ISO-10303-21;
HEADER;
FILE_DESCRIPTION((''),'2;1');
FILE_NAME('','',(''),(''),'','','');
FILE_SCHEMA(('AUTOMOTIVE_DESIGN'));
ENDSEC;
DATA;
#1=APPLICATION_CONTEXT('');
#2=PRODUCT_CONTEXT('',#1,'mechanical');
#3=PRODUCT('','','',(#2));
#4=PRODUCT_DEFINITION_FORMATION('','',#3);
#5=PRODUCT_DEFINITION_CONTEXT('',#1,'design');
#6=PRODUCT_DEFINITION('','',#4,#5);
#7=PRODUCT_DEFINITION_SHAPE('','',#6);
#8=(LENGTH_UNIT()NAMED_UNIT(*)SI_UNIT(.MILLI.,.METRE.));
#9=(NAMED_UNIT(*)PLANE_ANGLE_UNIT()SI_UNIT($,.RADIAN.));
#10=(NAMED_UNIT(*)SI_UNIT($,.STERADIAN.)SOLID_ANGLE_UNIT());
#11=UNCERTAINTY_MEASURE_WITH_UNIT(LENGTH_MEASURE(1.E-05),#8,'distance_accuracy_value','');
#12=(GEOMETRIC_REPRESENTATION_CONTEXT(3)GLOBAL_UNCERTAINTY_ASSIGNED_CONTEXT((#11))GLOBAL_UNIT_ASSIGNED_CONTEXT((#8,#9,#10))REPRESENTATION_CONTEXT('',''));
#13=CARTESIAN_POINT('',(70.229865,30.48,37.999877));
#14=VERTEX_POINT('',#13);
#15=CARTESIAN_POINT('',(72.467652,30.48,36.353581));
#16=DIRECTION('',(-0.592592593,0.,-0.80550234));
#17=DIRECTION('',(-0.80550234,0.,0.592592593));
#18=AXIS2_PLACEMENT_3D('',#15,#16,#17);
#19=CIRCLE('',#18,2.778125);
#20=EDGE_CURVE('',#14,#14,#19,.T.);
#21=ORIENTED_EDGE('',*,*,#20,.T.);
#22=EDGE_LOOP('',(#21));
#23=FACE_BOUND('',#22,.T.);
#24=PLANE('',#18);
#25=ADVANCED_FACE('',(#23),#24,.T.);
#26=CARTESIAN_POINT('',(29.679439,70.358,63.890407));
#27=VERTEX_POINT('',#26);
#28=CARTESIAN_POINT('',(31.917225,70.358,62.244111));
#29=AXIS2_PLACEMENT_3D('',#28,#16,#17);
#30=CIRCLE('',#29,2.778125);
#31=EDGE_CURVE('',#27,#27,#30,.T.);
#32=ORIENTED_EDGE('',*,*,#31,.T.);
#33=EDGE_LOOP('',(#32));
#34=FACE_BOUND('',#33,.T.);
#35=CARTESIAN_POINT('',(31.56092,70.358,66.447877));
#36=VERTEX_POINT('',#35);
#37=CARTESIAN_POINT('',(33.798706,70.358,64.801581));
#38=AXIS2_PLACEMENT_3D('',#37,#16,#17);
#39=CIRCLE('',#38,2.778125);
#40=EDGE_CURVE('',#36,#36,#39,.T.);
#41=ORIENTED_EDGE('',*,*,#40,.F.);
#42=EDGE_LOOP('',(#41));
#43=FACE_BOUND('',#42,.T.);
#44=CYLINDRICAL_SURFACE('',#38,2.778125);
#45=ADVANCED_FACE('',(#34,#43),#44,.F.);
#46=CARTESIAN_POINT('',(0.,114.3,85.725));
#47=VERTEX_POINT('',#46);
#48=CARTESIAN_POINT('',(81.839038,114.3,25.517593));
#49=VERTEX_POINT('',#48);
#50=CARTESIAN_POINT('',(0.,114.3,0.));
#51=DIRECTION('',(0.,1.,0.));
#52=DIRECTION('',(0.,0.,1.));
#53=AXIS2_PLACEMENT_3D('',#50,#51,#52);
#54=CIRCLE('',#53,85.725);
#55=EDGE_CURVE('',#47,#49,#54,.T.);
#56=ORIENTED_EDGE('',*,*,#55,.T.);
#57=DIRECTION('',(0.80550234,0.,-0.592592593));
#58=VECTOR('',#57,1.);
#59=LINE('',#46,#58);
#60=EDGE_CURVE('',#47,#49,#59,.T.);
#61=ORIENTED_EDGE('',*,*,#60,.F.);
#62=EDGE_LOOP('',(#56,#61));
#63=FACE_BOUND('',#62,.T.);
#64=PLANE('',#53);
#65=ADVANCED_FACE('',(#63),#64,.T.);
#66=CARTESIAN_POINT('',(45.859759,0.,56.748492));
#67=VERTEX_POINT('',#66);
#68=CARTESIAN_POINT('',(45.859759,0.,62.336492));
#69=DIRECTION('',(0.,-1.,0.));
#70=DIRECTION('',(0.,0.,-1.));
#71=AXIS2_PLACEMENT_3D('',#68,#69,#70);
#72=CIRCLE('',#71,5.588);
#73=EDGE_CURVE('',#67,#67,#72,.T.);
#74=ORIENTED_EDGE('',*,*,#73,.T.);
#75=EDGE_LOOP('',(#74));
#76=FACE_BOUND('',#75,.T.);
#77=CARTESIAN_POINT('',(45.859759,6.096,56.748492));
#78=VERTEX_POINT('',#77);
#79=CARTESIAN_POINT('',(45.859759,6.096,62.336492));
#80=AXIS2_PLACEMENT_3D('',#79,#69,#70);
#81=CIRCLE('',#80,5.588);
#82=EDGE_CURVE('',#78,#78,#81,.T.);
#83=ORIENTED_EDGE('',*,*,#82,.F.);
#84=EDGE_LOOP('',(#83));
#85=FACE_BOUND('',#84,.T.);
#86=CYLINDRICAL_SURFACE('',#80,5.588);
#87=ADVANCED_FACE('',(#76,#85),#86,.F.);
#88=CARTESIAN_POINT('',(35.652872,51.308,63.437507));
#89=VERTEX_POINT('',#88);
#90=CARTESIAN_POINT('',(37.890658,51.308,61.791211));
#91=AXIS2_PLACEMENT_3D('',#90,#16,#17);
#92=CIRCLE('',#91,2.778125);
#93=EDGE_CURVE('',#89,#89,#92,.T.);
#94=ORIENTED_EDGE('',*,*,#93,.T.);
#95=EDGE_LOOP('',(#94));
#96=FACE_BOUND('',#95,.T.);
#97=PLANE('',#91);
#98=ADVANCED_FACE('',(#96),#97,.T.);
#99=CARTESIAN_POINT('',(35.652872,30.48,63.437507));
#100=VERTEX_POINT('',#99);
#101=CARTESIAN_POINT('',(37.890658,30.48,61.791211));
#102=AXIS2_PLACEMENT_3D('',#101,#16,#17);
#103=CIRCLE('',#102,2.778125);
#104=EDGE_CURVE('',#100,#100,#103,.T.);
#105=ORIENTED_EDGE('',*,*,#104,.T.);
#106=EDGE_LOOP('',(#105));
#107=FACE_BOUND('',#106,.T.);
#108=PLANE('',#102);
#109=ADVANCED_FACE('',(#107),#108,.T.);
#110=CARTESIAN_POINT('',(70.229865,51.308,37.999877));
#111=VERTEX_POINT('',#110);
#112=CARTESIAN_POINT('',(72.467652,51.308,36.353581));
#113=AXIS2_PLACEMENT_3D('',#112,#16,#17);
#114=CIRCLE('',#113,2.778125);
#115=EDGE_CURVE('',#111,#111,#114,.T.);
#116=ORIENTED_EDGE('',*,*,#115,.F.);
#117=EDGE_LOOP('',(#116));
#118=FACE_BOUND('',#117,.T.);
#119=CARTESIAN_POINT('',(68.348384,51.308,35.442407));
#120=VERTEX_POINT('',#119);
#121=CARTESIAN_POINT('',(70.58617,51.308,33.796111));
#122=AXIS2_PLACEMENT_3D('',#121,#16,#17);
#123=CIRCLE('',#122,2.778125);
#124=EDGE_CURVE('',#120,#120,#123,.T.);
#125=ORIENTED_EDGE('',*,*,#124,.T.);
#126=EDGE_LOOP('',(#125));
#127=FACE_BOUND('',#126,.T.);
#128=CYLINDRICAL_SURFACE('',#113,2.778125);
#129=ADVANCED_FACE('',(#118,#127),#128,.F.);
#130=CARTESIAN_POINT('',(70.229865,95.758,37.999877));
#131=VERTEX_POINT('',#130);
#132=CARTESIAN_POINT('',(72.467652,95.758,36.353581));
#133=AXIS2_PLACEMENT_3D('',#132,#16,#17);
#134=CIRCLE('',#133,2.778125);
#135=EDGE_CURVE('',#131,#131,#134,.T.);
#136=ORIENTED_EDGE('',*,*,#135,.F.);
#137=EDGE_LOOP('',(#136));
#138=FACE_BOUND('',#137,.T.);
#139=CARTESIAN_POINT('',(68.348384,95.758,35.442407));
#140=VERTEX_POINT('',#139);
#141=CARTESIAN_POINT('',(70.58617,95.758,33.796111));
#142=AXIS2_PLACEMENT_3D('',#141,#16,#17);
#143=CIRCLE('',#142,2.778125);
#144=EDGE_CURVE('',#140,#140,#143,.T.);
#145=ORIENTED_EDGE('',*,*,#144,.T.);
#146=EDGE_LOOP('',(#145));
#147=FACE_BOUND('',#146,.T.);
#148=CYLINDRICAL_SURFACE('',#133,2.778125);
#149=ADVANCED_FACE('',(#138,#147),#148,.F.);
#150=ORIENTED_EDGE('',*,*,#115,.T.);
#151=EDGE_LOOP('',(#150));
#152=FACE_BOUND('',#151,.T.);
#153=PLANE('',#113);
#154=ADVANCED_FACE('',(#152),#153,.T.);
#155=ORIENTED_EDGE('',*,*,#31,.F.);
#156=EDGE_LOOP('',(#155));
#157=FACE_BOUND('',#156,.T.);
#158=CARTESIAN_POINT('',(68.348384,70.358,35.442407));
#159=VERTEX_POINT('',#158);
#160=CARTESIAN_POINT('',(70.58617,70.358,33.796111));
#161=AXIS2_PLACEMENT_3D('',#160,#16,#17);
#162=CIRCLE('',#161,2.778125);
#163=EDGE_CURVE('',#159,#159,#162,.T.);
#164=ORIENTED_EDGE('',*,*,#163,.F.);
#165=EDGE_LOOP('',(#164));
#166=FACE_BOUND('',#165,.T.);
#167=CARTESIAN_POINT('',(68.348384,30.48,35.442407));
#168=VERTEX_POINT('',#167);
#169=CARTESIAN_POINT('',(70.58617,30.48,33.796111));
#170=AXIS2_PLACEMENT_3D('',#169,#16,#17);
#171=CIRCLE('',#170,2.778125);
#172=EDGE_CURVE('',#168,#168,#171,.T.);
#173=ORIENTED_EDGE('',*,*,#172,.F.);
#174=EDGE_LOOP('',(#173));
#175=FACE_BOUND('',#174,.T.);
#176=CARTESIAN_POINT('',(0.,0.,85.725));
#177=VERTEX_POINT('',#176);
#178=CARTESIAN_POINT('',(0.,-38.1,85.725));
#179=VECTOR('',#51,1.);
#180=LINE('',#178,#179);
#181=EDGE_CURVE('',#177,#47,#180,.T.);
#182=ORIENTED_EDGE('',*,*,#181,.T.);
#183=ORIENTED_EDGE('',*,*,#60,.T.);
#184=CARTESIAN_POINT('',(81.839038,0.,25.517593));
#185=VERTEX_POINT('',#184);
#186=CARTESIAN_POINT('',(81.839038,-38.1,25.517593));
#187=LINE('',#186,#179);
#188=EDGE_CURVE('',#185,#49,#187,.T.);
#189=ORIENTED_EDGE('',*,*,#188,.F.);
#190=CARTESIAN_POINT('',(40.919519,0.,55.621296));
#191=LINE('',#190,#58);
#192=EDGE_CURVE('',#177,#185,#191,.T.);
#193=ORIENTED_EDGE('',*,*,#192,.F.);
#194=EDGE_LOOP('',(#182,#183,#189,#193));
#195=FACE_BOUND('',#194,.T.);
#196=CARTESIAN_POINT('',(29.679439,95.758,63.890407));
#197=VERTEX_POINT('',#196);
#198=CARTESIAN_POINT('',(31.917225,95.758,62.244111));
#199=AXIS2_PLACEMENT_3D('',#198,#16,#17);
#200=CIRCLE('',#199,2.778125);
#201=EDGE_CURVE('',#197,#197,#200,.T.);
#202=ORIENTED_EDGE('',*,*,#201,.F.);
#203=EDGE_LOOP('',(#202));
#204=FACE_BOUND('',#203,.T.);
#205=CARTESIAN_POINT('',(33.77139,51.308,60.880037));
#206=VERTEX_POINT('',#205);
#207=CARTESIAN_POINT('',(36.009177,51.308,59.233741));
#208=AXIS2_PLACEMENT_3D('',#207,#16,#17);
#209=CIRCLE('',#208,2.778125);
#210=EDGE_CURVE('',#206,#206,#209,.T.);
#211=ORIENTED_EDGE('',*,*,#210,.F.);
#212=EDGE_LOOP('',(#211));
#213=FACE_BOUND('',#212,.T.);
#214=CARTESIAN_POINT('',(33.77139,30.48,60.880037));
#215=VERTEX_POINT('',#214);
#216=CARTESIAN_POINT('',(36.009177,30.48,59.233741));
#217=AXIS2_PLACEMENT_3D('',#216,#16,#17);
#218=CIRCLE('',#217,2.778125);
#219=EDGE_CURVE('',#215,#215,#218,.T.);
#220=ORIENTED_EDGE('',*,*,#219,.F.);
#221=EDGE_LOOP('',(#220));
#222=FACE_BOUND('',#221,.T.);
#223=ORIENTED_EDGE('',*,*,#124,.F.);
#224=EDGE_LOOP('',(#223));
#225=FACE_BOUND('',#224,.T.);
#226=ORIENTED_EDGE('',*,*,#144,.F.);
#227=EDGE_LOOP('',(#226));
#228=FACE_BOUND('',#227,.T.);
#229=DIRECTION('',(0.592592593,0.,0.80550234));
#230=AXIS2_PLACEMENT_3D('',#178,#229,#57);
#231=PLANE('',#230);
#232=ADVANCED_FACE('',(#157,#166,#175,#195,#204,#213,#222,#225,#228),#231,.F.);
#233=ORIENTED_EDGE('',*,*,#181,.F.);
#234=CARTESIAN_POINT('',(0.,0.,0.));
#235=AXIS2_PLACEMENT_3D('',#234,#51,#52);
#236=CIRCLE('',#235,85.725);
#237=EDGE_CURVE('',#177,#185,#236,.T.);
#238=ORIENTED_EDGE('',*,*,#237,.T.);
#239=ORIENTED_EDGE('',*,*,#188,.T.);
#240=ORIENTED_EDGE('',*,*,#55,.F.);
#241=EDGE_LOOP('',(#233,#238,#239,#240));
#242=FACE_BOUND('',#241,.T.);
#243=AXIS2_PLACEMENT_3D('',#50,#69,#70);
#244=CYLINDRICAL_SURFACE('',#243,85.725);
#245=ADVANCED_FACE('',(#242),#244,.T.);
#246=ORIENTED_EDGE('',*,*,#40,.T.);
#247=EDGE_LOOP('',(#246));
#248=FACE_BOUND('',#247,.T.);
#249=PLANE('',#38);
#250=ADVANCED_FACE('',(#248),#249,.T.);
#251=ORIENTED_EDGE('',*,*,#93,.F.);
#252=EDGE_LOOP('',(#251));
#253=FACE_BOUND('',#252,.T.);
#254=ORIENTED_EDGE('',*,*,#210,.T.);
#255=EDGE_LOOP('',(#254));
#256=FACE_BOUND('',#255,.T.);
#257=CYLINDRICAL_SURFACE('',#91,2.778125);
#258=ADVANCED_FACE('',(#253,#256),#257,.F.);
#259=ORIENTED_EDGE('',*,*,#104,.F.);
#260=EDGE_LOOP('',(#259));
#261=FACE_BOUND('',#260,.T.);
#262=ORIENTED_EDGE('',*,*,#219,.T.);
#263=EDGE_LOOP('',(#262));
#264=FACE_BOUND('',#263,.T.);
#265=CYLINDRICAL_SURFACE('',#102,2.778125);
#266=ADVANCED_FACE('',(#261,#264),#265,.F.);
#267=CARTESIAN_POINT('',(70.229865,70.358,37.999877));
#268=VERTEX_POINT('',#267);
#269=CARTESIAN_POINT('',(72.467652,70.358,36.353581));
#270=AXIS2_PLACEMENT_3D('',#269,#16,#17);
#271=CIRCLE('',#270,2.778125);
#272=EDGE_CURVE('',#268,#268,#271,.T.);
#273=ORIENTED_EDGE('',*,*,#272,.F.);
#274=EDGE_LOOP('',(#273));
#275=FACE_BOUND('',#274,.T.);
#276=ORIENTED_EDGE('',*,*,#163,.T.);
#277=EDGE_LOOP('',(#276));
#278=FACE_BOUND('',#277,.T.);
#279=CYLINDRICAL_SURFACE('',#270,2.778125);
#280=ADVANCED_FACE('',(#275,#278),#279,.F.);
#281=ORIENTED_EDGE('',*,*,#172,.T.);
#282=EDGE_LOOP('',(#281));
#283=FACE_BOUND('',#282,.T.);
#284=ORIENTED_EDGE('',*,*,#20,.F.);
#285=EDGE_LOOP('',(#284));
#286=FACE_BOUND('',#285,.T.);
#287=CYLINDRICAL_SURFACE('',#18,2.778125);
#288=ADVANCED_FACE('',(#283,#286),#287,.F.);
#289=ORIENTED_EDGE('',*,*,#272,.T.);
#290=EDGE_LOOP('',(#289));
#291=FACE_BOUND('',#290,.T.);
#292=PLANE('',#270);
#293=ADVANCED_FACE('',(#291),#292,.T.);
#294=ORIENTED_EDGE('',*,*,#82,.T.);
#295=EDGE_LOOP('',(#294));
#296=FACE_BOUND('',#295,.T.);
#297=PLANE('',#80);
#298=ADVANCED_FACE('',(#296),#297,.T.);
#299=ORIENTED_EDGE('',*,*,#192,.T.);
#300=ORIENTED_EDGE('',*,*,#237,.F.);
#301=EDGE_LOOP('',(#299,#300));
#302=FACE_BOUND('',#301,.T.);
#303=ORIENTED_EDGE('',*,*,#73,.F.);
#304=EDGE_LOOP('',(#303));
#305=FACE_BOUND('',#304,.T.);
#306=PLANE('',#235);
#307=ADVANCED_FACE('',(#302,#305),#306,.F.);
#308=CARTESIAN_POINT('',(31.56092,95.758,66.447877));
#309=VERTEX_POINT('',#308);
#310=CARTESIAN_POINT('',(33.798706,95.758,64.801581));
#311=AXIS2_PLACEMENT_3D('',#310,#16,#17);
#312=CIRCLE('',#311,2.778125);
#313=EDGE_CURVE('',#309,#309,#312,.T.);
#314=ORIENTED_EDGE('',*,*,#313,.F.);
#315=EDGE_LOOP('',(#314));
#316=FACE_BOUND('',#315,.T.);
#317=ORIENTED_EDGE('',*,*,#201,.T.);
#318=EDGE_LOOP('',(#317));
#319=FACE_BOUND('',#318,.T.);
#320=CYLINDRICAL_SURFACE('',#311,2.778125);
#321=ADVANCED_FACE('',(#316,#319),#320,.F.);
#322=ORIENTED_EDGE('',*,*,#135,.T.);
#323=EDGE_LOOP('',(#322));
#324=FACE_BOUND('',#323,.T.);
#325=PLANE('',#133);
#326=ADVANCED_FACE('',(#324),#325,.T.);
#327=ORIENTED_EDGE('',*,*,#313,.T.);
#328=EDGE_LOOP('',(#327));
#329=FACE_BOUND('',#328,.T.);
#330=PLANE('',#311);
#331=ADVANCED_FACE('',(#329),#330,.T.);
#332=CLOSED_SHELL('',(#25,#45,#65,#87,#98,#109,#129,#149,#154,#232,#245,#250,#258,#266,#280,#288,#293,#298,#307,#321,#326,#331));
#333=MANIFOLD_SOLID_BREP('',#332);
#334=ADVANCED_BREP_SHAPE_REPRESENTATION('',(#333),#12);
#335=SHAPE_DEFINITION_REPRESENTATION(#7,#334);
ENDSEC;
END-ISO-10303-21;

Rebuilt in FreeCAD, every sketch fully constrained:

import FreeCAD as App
import Part
import Sketcher

V = App.Vector
Q = App.Units.Quantity

doc = App.newDocument("Part")
body = doc.addObject("PartDesign::Body", "Body")

sketch1 = body.newObject("Sketcher::SketchObject", "Sketch")
sketch1.AttachmentSupport = (doc.getObject("XZ_Plane"), [""])
sketch1.MapMode = "FlatFace"
sketch1.addGeometry(Part.Circle(V(0, 0, 0), V(0, 0, 1), 86), False)
sketch1.addConstraint([
    Sketcher.Constraint("Coincident", 0, 3, -1, 1),
    Sketcher.Constraint("Diameter", 0, Q("6.75 in")),
])
pad1 = body.newObject("PartDesign::Pad", "Pad")
pad1.Profile = sketch1
pad1.Length = Q("4.5 in")
pad1.Reversed = True

sketch2 = body.newObject("Sketcher::SketchObject", "Sketch001")
sketch2.AttachmentSupport = (doc.getObject("XZ_Plane"), [""])
sketch2.MapMode = "FlatFace"
sketch2.AttachmentOffset = App.Placement(V(0, 0, -4.5 * 25.4), App.Rotation())
sketch2.addGeometry([
    Part.LineSegment(V(0, 86, 0), V(82, 26, 0)),
    Part.LineSegment(V(82, 26, 0), V(151, -75, 0)),
    Part.LineSegment(V(151, -75, 0), V(-39, -116, 0)),
    Part.LineSegment(V(-39, -116, 0), V(-149, -19, 0)),
    Part.LineSegment(V(-149, -19, 0), V(-69, 105, 0)),
    Part.LineSegment(V(-69, 105, 0), V(0, 86, 0)),
], False)
sketch2.addConstraint([
    Sketcher.Constraint("Coincident", 0, 2, 1, 1),
    Sketcher.Constraint("Coincident", 1, 2, 2, 1),
    Sketcher.Constraint("Coincident", 2, 2, 3, 1),
    Sketcher.Constraint("Coincident", 3, 2, 4, 1),
    Sketcher.Constraint("Coincident", 4, 2, 5, 1),
    Sketcher.Constraint("Coincident", 5, 2, 0, 1),
    Sketcher.Constraint("PointOnObject", 5, 2, -2),
    Sketcher.Constraint("Distance", 0, Q("4 in")),
    Sketcher.Constraint("DistanceY", -1, 1, 5, 2, Q("3.375 in")),
    Sketcher.Constraint("DistanceY", 1, 2, 3, 2, 56.198901),
    Sketcher.Constraint("DistanceY", 1, 2, -1, 1, 75.062868),
    Sketcher.Constraint("DistanceX", 4, 2, -1, 1, 68.774879),
    Sketcher.Constraint("DistanceY", 1, 2, 0, 2, 100.580461),
    Sketcher.Constraint("DistanceX", 2, 2, 0, 2, 120.35297),
    Sketcher.Constraint("DistanceY", 2, 2, 0, 2, 141.452389),
    Sketcher.Constraint("DistanceX", 3, 2, 1, 2, 300.644472),
    Sketcher.Constraint("DistanceX", 3, 2, 4, 2, 80.564859),
    Sketcher.Constraint("Distance", 4, 147.372645),
])
pocket1 = body.newObject("PartDesign::Pocket", "Pocket")
pocket1.Profile = sketch2
pocket1.Length = Q("6 in")
pocket1.Reversed = True

sketch3 = body.newObject("Sketcher::SketchObject", "Sketch002")
sketch3.Placement = App.Placement(V(40.919519, 0, 55.621296), App.Rotation(V(-0.80550234, 0, 0.592592593), V(0, 1.000000001, 0), V(-0.592592593, 0, -0.80550234), "ZXY"))
sketch3.addGeometry([
    Part.Circle(V(-36.8, 95.8, 0), V(0, 0, 1), 2.8),
    Part.Circle(V(11.2, 95.8, 0), V(0, 0, 1), 2.8),
    Part.Circle(V(-36.8, 70.4, 0), V(0, 0, 1), 2.8),
    Part.Circle(V(11.2, 70.4, 0), V(0, 0, 1), 2.8),
    Part.Circle(V(-36.8, 51.3, 0), V(0, 0, 1), 2.8),
    Part.Circle(V(6.1, 51.3, 0), V(0, 0, 1), 2.8),
    Part.Circle(V(-36.8, 30.5, 0), V(0, 0, 1), 2.8),
    Part.Circle(V(6.1, 30.5, 0), V(0, 0, 1), 2.8),
], False)
sketch3.addConstraint([
    Sketcher.Constraint("Equal", 0, 1),
    Sketcher.Constraint("Equal", 1, 2),
    Sketcher.Constraint("Equal", 2, 3),
    Sketcher.Constraint("Equal", 3, 4),
    Sketcher.Constraint("Equal", 4, 5),
    Sketcher.Constraint("Equal", 5, 6),
    Sketcher.Constraint("Equal", 6, 7),
    Sketcher.Constraint("Horizontal", 0, 3, 1, 3),
    Sketcher.Constraint("Horizontal", 2, 3, 3, 3),
    Sketcher.Constraint("Horizontal", 4, 3, 5, 3),
    Sketcher.Constraint("Horizontal", 6, 3, 7, 3),
    Sketcher.Constraint("Vertical", 0, 3, 2, 3),
    Sketcher.Constraint("Vertical", 1, 3, 3, 3),
    Sketcher.Constraint("Vertical", 2, 3, 4, 3),
    Sketcher.Constraint("Vertical", 4, 3, 6, 3),
    Sketcher.Constraint("Vertical", 5, 3, 7, 3),
    Sketcher.Constraint("Diameter", 0, Q("0.21875 in")),
    Sketcher.Constraint("DistanceY", 2, 3, 0, 3, Q("1 in")),
    Sketcher.Constraint("DistanceY", -1, 1, 6, 3, Q("1.2 in")),
    Sketcher.Constraint("DistanceX", 5, 3, 3, 3, Q("0.2 in")),
    Sketcher.Constraint("DistanceX", 0, 3, -1, 1, Q("1.45 in")),
    Sketcher.Constraint("DistanceY", -1, 1, 0, 3, Q("3.77 in")),
    Sketcher.Constraint("DistanceX", -1, 1, 1, 3, Q("0.44 in")),
    Sketcher.Constraint("DistanceY", -1, 1, 4, 3, Q("2.02 in")),
])
pocket2 = body.newObject("PartDesign::Pocket", "Pocket001")
pocket2.Profile = sketch3
pocket2.Length = Q("0.125 in")

sketch4 = body.newObject("Sketcher::SketchObject", "Sketch003")
sketch4.AttachmentSupport = (doc.getObject("XZ_Plane"), [""])
sketch4.MapMode = "FlatFace"
sketch4.addGeometry(Part.Circle(V(46, 62, 0), V(0, 0, 1), 6), False)
sketch4.addConstraint([
    Sketcher.Constraint("Diameter", 0, Q("0.44 in")),
    Sketcher.Constraint("DistanceX", -1, 1, 0, 3, 45.859759),
    Sketcher.Constraint("DistanceY", -1, 1, 0, 3, 62.336492),
])
pocket3 = body.newObject("PartDesign::Pocket", "Pocket002")
pocket3.Profile = sketch4
pocket3.Length = Q("0.24 in")

doc.recompute()
